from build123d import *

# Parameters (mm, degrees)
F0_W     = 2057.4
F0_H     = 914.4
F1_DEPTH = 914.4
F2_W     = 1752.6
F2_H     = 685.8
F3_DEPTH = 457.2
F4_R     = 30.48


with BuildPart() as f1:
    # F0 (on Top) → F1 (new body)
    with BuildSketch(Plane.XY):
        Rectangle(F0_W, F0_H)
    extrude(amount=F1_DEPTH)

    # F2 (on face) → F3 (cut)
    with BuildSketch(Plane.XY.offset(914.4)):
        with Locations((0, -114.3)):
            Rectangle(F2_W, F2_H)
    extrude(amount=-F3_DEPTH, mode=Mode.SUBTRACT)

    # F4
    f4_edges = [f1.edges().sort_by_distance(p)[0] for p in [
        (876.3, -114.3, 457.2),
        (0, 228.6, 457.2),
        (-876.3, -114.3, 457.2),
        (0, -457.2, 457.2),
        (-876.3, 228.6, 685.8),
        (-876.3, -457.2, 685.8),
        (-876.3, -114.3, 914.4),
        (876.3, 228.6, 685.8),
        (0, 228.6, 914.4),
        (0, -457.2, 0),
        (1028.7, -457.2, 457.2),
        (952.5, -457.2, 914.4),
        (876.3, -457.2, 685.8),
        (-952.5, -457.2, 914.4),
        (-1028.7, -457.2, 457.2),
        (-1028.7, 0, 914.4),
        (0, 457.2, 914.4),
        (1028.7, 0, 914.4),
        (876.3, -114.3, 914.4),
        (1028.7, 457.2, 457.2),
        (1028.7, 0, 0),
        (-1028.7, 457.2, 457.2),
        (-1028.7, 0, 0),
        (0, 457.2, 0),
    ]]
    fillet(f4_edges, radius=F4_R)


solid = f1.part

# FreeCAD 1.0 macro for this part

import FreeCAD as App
import Part
import Sketcher

V = App.Vector
Q = App.Units.Quantity


def add_polygon(sketch, points):
    """Adds a closed chain of lines whose ends are joined by coincident constraints."""
    first, n = sketch.GeometryCount, len(points)
    for a, b in zip(points, points[1:] + points[:1]):
        sketch.addGeometry(Part.LineSegment(App.Vector(*a, 0), App.Vector(*b, 0)), False)
    for i in range(n):
        sketch.addConstraint(Sketcher.Constraint("Coincident", first + i, 2, first + (i + 1) % n, 1))

doc = App.newDocument("Part")
body = doc.addObject("PartDesign::Body", "Body")

# Sketch on XY plane
sketch1 = body.newObject("Sketcher::SketchObject", "Sketch")
sketch1.AttachmentSupport = (doc.getObject("XY_Plane"), [""])
sketch1.MapMode = "FlatFace"
add_polygon(sketch1, [(-1029, 457), (-1029, -457), (1029, -457), (1029, 457)])  # lines 0-3
sketch1.addConstraint(Sketcher.Constraint("Vertical", 0))
sketch1.addConstraint(Sketcher.Constraint("Horizontal", 1))
sketch1.addConstraint(Sketcher.Constraint("Vertical", 2))
sketch1.addConstraint(Sketcher.Constraint("Horizontal", 3))
sketch1.addConstraint(Sketcher.Constraint("Symmetric", 0, 2, 2, 2, -1, 1))
sketch1.addConstraint(Sketcher.Constraint("DistanceX", 1, 1, 1, 2, Q("81 in")))
sketch1.addConstraint(Sketcher.Constraint("DistanceY", 0, 2, 0, 1, Q("36 in")))
pad1 = body.newObject("PartDesign::Pad", "Pad")
pad1.Profile = sketch1
pad1.Length = Q("36 in")

# Sketch on XY plane
sketch2 = body.newObject("Sketcher::SketchObject", "Sketch001")
sketch2.AttachmentSupport = (doc.getObject("XY_Plane"), [""])
sketch2.MapMode = "FlatFace"
sketch2.AttachmentOffset = App.Placement(V(0, 0, 36 * 25.4), App.Rotation())
add_polygon(sketch2, [(-876, 229), (-876, -457), (876, -457), (876, 229)])  # lines 0-3
sketch2.addConstraint(Sketcher.Constraint("Vertical", 0))
sketch2.addConstraint(Sketcher.Constraint("Horizontal", 1))
sketch2.addConstraint(Sketcher.Constraint("Vertical", 2))
sketch2.addConstraint(Sketcher.Constraint("Horizontal", 3))
sketch2.addConstraint(Sketcher.Constraint("DistanceX", 1, 1, 1, 2, Q("69 in")))
sketch2.addConstraint(Sketcher.Constraint("DistanceY", 0, 2, 0, 1, Q("27 in")))
sketch2.addConstraint(Sketcher.Constraint("DistanceY", 0, 2, -1, 1, Q("18 in")))
sketch2.addConstraint(Sketcher.Constraint("DistanceX", 0, 2, -1, 1, Q("34.5 in")))
pocket1 = body.newObject("PartDesign::Pocket", "Pocket")
pocket1.Profile = sketch2
pocket1.Length = Q("18 in")
doc.recompute()

fillet = body.newObject("PartDesign::Fillet", "Fillet")
fillet.Base = (pocket1, ["Edge1"])
fillet.UseAllEdges = True
fillet.Radius = Q("1.2 in")

doc.recompute()
